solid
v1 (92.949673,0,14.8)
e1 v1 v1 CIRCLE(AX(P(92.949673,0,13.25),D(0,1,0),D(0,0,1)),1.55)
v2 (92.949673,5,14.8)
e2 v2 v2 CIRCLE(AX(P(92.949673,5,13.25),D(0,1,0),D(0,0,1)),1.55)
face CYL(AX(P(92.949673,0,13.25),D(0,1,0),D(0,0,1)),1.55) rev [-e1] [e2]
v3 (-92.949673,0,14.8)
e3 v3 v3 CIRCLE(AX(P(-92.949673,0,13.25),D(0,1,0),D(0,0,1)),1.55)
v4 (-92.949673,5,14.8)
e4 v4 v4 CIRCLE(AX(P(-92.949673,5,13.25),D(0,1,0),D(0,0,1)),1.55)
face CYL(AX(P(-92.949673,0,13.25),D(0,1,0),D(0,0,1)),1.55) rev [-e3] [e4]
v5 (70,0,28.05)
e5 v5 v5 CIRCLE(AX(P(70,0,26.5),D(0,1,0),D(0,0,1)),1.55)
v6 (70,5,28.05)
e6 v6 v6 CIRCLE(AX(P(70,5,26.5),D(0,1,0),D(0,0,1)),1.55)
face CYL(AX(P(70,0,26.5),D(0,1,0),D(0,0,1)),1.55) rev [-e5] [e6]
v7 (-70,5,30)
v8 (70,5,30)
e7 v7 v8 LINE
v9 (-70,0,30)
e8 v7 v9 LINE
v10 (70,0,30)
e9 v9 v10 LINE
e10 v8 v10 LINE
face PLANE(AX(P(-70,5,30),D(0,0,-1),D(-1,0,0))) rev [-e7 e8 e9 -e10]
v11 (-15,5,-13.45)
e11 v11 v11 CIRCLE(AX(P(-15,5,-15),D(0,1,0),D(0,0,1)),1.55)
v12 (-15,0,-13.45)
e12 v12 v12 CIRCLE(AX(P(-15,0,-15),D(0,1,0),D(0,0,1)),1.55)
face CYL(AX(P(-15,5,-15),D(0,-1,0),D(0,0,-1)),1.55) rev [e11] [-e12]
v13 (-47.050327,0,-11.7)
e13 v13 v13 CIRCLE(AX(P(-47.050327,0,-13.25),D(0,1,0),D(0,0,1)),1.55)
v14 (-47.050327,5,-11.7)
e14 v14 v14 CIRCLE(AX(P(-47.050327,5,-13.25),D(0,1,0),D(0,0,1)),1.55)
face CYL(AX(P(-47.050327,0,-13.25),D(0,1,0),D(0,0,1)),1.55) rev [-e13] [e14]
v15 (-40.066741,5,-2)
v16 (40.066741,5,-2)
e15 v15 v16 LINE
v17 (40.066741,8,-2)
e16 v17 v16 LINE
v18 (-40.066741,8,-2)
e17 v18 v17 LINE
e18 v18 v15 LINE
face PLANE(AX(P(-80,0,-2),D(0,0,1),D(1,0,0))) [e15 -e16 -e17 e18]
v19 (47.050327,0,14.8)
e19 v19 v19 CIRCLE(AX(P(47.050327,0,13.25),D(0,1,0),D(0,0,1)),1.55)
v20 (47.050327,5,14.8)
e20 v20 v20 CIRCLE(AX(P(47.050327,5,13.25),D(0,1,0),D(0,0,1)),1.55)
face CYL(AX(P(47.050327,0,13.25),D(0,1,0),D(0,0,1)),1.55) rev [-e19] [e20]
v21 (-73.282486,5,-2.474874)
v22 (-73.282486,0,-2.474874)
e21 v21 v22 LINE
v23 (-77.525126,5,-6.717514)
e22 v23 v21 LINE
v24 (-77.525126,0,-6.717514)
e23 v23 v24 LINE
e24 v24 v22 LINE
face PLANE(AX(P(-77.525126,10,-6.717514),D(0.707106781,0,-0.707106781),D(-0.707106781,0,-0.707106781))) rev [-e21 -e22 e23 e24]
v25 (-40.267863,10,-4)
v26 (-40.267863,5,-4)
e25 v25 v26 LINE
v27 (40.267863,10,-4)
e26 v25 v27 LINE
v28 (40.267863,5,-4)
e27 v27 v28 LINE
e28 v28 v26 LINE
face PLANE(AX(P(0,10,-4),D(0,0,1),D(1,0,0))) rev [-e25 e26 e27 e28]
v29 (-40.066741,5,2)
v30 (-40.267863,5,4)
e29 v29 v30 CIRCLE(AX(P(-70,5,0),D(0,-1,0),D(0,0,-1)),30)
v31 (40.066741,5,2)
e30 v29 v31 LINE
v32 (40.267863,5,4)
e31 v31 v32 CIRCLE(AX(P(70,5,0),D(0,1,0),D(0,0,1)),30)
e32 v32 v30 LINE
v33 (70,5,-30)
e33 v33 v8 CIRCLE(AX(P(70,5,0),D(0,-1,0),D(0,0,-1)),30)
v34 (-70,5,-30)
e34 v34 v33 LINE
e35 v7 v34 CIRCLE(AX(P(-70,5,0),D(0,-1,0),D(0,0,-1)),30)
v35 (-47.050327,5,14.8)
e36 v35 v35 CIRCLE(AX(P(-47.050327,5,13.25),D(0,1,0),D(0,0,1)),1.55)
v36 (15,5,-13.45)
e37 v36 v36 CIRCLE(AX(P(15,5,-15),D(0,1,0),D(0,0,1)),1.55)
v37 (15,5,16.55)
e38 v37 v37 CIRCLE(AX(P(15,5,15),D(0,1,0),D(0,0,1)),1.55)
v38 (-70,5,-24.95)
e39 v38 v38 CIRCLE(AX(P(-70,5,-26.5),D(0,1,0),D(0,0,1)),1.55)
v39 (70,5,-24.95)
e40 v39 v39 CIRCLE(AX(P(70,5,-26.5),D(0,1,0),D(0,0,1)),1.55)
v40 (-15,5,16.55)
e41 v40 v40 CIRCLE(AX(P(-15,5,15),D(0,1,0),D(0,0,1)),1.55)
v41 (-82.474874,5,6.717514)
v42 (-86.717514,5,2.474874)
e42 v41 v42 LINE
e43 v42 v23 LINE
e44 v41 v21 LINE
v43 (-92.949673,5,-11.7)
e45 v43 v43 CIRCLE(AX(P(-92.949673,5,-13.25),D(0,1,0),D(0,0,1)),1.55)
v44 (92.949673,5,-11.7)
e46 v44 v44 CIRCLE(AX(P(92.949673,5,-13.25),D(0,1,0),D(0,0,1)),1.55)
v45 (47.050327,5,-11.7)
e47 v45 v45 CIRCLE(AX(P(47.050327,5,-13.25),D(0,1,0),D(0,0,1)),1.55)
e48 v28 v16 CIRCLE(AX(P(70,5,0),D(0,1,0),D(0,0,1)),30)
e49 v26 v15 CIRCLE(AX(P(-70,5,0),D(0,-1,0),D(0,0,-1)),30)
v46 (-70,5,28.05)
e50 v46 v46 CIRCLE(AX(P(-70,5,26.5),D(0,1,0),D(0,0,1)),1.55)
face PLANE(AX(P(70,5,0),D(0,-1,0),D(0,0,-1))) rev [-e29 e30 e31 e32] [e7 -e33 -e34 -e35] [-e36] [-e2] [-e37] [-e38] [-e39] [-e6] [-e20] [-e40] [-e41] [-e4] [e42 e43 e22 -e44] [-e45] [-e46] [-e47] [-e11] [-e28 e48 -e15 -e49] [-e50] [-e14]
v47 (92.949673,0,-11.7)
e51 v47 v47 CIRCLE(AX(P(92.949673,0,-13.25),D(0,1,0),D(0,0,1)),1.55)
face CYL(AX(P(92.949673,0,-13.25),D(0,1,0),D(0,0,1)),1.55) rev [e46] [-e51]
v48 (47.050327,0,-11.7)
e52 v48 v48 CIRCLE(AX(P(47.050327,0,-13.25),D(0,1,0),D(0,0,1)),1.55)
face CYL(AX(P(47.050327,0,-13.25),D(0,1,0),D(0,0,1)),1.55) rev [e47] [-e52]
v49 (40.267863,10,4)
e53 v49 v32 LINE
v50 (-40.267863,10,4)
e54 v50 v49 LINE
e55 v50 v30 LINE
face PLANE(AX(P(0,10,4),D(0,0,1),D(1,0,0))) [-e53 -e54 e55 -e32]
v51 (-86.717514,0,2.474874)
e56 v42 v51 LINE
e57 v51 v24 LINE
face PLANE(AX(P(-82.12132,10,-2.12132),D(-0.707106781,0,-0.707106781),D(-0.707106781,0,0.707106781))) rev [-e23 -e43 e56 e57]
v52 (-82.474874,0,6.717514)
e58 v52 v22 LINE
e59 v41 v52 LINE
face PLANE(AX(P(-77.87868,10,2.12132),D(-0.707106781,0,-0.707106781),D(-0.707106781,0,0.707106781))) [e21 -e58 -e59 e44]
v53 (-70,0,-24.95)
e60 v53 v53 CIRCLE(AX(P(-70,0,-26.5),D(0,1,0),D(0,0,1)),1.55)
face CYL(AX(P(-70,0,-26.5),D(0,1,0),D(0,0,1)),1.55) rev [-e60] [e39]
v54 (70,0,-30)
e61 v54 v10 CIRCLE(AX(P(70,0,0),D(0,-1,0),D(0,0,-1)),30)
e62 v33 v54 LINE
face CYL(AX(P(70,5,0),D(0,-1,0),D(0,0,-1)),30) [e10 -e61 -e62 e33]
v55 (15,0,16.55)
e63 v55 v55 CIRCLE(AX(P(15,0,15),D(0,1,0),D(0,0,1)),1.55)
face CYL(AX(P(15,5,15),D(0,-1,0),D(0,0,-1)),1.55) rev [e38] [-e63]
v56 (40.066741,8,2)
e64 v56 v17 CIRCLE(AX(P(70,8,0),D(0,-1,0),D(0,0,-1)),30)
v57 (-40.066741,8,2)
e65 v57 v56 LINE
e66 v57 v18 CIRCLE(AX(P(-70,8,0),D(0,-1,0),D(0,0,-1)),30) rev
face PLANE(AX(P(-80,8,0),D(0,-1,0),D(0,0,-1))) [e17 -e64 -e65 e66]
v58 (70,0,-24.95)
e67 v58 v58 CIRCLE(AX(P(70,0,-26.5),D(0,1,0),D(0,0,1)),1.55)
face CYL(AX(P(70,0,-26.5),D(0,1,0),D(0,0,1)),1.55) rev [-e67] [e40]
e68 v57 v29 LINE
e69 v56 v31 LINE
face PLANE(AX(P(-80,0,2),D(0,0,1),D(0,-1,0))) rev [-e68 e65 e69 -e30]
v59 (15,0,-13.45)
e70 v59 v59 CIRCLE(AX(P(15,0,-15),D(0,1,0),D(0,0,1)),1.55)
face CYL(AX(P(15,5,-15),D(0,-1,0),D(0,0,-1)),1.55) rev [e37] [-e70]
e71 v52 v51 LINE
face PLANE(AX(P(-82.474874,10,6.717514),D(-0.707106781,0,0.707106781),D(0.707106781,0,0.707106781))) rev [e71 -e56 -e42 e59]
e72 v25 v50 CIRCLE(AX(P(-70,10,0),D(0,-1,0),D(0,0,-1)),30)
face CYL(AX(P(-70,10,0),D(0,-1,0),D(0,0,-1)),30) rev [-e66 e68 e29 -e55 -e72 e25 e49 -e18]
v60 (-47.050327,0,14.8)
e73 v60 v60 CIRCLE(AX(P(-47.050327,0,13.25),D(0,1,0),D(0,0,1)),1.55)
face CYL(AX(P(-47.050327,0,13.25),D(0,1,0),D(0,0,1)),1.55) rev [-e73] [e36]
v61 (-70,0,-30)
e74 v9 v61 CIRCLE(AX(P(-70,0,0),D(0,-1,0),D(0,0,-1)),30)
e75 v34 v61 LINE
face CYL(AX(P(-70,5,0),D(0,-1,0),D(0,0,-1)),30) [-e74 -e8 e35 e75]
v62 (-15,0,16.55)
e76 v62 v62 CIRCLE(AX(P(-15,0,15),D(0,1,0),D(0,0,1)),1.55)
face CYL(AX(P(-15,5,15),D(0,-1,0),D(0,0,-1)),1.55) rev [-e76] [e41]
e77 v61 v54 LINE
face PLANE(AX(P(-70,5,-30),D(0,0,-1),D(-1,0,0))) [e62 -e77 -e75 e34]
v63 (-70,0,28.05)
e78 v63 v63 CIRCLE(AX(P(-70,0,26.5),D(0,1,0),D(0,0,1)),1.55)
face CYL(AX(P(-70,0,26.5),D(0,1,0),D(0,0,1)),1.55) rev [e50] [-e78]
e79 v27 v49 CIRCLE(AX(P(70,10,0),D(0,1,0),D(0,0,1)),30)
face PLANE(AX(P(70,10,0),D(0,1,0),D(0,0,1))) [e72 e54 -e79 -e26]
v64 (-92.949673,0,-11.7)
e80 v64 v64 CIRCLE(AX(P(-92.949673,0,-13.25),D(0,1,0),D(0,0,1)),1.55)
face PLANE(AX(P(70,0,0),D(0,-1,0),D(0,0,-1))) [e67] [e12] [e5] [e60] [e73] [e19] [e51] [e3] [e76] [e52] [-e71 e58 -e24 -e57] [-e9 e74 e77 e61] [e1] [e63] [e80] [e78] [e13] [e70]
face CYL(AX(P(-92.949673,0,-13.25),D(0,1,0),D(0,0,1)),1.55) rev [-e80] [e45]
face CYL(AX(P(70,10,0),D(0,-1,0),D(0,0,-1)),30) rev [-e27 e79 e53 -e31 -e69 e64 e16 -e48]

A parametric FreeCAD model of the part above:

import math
import FreeCAD as App
import Part
import Sketcher

V = App.Vector
Q = App.Units.Quantity


def add_polygon(sketch, points):
    """Adds a closed chain of lines whose ends are joined by coincident constraints."""
    first, n = sketch.GeometryCount, len(points)
    for a, b in zip(points, points[1:] + points[:1]):
        sketch.addGeometry(Part.LineSegment(App.Vector(*a, 0), App.Vector(*b, 0)), False)
    for i in range(n):
        sketch.addConstraint(Sketcher.Constraint("Coincident", first + i, 2, first + (i + 1) % n, 1))

doc = App.newDocument("Part")
params = doc.addObject("Spreadsheet::Sheet", "Params")
for row, (alias, value) in enumerate([
    ("sketch1_radius", "30 mm"),
    ("sketch1_diameter", "3.1 mm"),
    ("sketch1_width", "140 mm"),
    ("sketch1_width2", "20 mm"),
    ("pad1_length", "5 mm"),
    ("sketch2_diameter", "3.1 mm"),
    ("pocket1_length", "5 mm"),
    ("sketch3_width", "20 mm"),
    ("pad2_length", "5 mm"),
    ("sketch4_radius", "30 mm"),
    ("pad3_length", "5 mm"),
    ("sketch5_height", "8 mm"),
    ("pad4_length", "5 mm"),
    ("sketch6_width", "3 mm"),
    ("sketch6_height", "4 mm"),
    ("pocket2_length", "150 mm"),
    ("sketch7_width", "5 mm"),
    ("sketch7_height", "8 mm"),
    ("pocket3_length", "10 mm"),
    ("sketch8_length", "6 mm"),
    ("sketch8_length2", "6.5 mm"),
    ("pocket4_length", "10 mm"),
], start=1):
    params.set(f"A{row}", alias)
    params.set(f"B{row}", "=" + value)
    params.setAlias(f"B{row}", alias)

body = doc.addObject("PartDesign::Body", "Body")

sketch1 = body.newObject("Sketcher::SketchObject", "Sketch")
sketch1.AttachmentSupport = (doc.getObject("XZ_Plane"), [""])
sketch1.MapMode = "FlatFace"
sketch1.addGeometry(Part.LineSegment(V(70, -30, 0), V(-70, -30, 0)), False)
sketch1.addGeometry(Part.ArcOfCircle(Part.Circle(V(-70, 0, 0), V(0, 0, 1), 30), math.radians(90), math.radians(270)), False)
sketch1.addGeometry(Part.LineSegment(V(-70, 30, 0), V(70, 30, 0)), False)
sketch1.addGeometry(Part.ArcOfCircle(Part.Circle(V(70, 0, 0), V(0, 0, 1), 30), math.radians(-90), math.radians(90)), False)
sketch1.addGeometry(Part.Circle(V(15, 15, 0), V(0, 0, 1), 1.55), False)
sketch1.addGeometry(Part.Circle(V(-15, 15, 0), V(0, 0, 1), 1.55), False)
add_polygon(sketch1, [(90, 10), (70, 10), (70, -10), (90, -10)])
sketch1.addGeometry(Part.Circle(V(15, -15, 0), V(0, 0, 1), 1.55), False)
add_polygon(sketch1, [(-90, -10), (-70, -10), (-70, 10), (-90, 10)])
sketch1.addGeometry(Part.Circle(V(-15, -15, 0), V(0, 0, 1), 1.55), False)
sketch1.addConstraint([
    Sketcher.Constraint("Tangent", 0, 2, 1, 2),
    Sketcher.Constraint("Tangent", 1, 1, 2, 1),
    Sketcher.Constraint("Tangent", 2, 2, 3, 2),
    Sketcher.Constraint("Tangent", 3, 1, 0, 1),
    Sketcher.Constraint("Horizontal", 0),
    Sketcher.Constraint("Horizontal", 2),
    Sketcher.Constraint("Horizontal", 6),
    Sketcher.Constraint("Vertical", 7),
    Sketcher.Constraint("Horizontal", 8),
    Sketcher.Constraint("Vertical", 9),
    Sketcher.Constraint("Horizontal", 11),
    Sketcher.Constraint("Vertical", 12),
    Sketcher.Constraint("Horizontal", 13),
    Sketcher.Constraint("Vertical", 14),
    Sketcher.Constraint("Equal", 4, 5),
    Sketcher.Constraint("Equal", 5, 10),
    Sketcher.Constraint("Equal", 10, 15),
    Sketcher.Constraint("Symmetric", 1, 3, 3, 3, -1, 1),
    Sketcher.Constraint("Symmetric", 5, 3, 10, 3, -1, 1),
    Sketcher.Constraint("Symmetric", 4, 3, 15, 3, -1, 1),
    Sketcher.Constraint("Symmetric", 6, 2, 11, 2, -1, 1),
    Sketcher.Constraint("Symmetric", 8, 2, 13, 2, -1, 1),
    Sketcher.Constraint("Symmetric", 4, 3, 5, 3, -2),
    Sketcher.Constraint("Horizontal", 8, 2, 11, 2),
    Sketcher.Constraint("Vertical", 3, 1, 6, 2),
    Sketcher.Constraint("Equal", 13, 7),
    Sketcher.Constraint("Radius", 1, 30.0),
    Sketcher.Constraint("Diameter", 4, 3.1),
    Sketcher.Constraint("DistanceX", 0, 2, 0, 1, 140.0),
    Sketcher.Constraint("DistanceX", 6, 2, 6, 1, 20.0),
    Sketcher.Constraint("DistanceX", -1, 1, 4, 3, 15.0),
    Sketcher.Constraint("DistanceY", -1, 1, 4, 3, 15.0),
])
sketch1.setExpression("Constraints[34]", "Params.sketch1_radius")
sketch1.setExpression("Constraints[35]", "Params.sketch1_diameter")
sketch1.setExpression("Constraints[36]", "Params.sketch1_width")
sketch1.setExpression("Constraints[37]", "Params.sketch1_width2")
pad1 = body.newObject("PartDesign::Pad", "Pad")
pad1.Profile = sketch1
pad1.setExpression("Length", "Params.pad1_length")
pad1.Reversed = True

sketch2 = body.newObject("Sketcher::SketchObject", "Sketch001")
sketch2.AttachmentSupport = (doc.getObject("XZ_Plane"), [""])
sketch2.MapMode = "FlatFace"
sketch2.AttachmentOffset = App.Placement(V(0, 0, -5), App.Rotation())
sketch2.addGeometry([
    Part.Circle(V(-70, -26.5, 0), V(0, 0, 1), 1.55),
    Part.Circle(V(-92.949673, -13.25, 0), V(0, 0, 1), 1.55),
    Part.Circle(V(-92.949673, 13.25, 0), V(0, 0, 1), 1.55),
    Part.Circle(V(-70, 26.5, 0), V(0, 0, 1), 1.55),
    Part.Circle(V(-47.050327, 13.25, 0), V(0, 0, 1), 1.55),
    Part.Circle(V(-47.050327, -13.25, 0), V(0, 0, 1), 1.55),
    Part.Circle(V(92.949673, -13.25, 0), V(0, 0, 1), 1.55),
    Part.Circle(V(92.949673, 13.25, 0), V(0, 0, 1), 1.55),
    Part.Circle(V(70, 26.5, 0), V(0, 0, 1), 1.55),
    Part.Circle(V(47.050327, 13.25, 0), V(0, 0, 1), 1.55),
    Part.Circle(V(47.050327, -13.25, 0), V(0, 0, 1), 1.55),
    Part.Circle(V(70, -26.5, 0), V(0, 0, 1), 1.55),
], False)
sketch2.addConstraint([
    Sketcher.Constraint("Equal", 0, 1),
    Sketcher.Constraint("Equal", 1, 2),
    Sketcher.Constraint("Equal", 2, 3),
    Sketcher.Constraint("Equal", 3, 4),
    Sketcher.Constraint("Equal", 4, 5),
    Sketcher.Constraint("Equal", 5, 6),
    Sketcher.Constraint("Equal", 6, 7),
    Sketcher.Constraint("Equal", 7, 8),
    Sketcher.Constraint("Equal", 8, 9),
    Sketcher.Constraint("Equal", 9, 10),
    Sketcher.Constraint("Equal", 10, 11),
    Sketcher.Constraint("Symmetric", 2, 3, 6, 3, -1, 1),
    Sketcher.Constraint("Symmetric", 1, 3, 7, 3, -1, 1),
    Sketcher.Constraint("Symmetric", 0, 3, 8, 3, -1, 1),
    Sketcher.Constraint("Symmetric", 5, 3, 9, 3, -1, 1),
    Sketcher.Constraint("Symmetric", 4, 3, 10, 3, -1, 1),
    Sketcher.Constraint("Symmetric", 3, 3, 11, 3, -1, 1),
    Sketcher.Constraint("Symmetric", 1, 3, 6, 3, -2),
    Sketcher.Constraint("Symmetric", 3, 3, 8, 3, -2),
    Sketcher.Constraint("Symmetric", 4, 3, 9, 3, -2),
    Sketcher.Constraint("Horizontal", 2, 3, 4, 3),
    Sketcher.Constraint("Diameter", 0, 3.1),
    Sketcher.Constraint("DistanceX", 0, 3, -1, 1, 70.0),
    Sketcher.Constraint("DistanceY", 0, 3, 3, 3, 53.0),
    Sketcher.Constraint("DistanceX", 5, 3, 6, 3, 140.0),
    Sketcher.Constraint("DistanceY", 1, 3, 2, 3, 26.5),
    Sketcher.Constraint("DistanceX", 1, 3, -1, 1, 92.949673),
])
sketch2.setExpression("Constraints[21]", "Params.sketch2_diameter")
pocket1 = body.newObject("PartDesign::Pocket", "Pocket")
pocket1.Profile = sketch2
pocket1.setExpression("Length", "Params.pocket1_length")
pocket1.Reversed = True

sketch3 = body.newObject("Sketcher::SketchObject", "Sketch002")
sketch3.AttachmentSupport = (doc.getObject("XZ_Plane"), [""])
sketch3.MapMode = "FlatFace"
sketch3.AttachmentOffset = App.Placement(V(0, 0, -5), App.Rotation())
add_polygon(sketch3, [(-90, -10), (-90, 10), (-70, 10), (-70, -10)])
add_polygon(sketch3, [(70, -10), (70, 10), (90, 10), (90, -10)])
sketch3.addConstraint([
    Sketcher.Constraint("Vertical", 0),
    Sketcher.Constraint("Horizontal", 1),
    Sketcher.Constraint("Vertical", 2),
    Sketcher.Constraint("Horizontal", 3),
    Sketcher.Constraint("Vertical", 4),
    Sketcher.Constraint("Horizontal", 5),
    Sketcher.Constraint("Vertical", 6),
    Sketcher.Constraint("Horizontal", 7),
    Sketcher.Constraint("Symmetric", 2, 2, 4, 2, -1, 1),
    Sketcher.Constraint("Symmetric", 0, 2, 6, 2, -1, 1),
    Sketcher.Constraint("Horizontal", 1, 2, 4, 2),
    Sketcher.Constraint("Equal", 7, 0),
    Sketcher.Constraint("DistanceX", 1, 1, 1, 2, 20.0),
    Sketcher.Constraint("DistanceX", 0, 2, -1, 1, 90.0),
])
sketch3.setExpression("Constraints[20]", "Params.sketch3_width")
pad2 = body.newObject("PartDesign::Pad", "Pad001")
pad2.Profile = sketch3
pad2.setExpression("Length", "Params.pad2_length")

sketch4 = body.newObject("Sketcher::SketchObject", "Sketch003")
sketch4.AttachmentSupport = (doc.getObject("XZ_Plane"), [""])
sketch4.MapMode = "FlatFace"
sketch4.AttachmentOffset = App.Placement(V(0, 0, -5), App.Rotation())
sketch4.addGeometry([
    Part.ArcOfCircle(Part.Circle(V(70, 0, 0), V(0, 0, 1), 30), math.radians(172.337744), math.radians(187.662256)),
    Part.LineSegment(V(40.267863, -4, 0), V(-40.267863, -4, 0)),
    Part.ArcOfCircle(Part.Circle(V(-70, 0, 0), V(0, 0, 1), 30), math.radians(-7.662256), math.radians(7.662256)),
    Part.LineSegment(V(-40.267863, 4, 0), V(40.267863, 4, 0)),
], False)
sketch4.addConstraint([
    Sketcher.Constraint("Coincident", 0, 2, 1, 1),
    Sketcher.Constraint("Coincident", 1, 2, 2, 1),
    Sketcher.Constraint("Coincident", 2, 2, 3, 1),
    Sketcher.Constraint("Coincident", 3, 2, 0, 1),
    Sketcher.Constraint("Horizontal", 1),
    Sketcher.Constraint("Horizontal", 3),
    Sketcher.Constraint("Equal", 0, 2),
    Sketcher.Constraint("Symmetric", 0, 3, 2, 3, -1, 1),
    Sketcher.Constraint("Symmetric", 1, 2, 2, 2, -1),
    Sketcher.Constraint("Radius", 0, 30.0),
    Sketcher.Constraint("DistanceX", -1, 1, 0, 3, 70.0),
    Sketcher.Constraint("DistanceY", 0, 2, -1, 1, 4.0),
])
sketch4.setExpression("Constraints[9]", "Params.sketch4_radius")
pad3 = body.newObject("PartDesign::Pad", "Pad002")
pad3.Profile = sketch4
pad3.setExpression("Length", "Params.pad3_length")
pad3.Reversed = True

sketch5 = body.newObject("Sketcher::SketchObject", "Sketch004")
sketch5.AttachmentSupport = (doc.getObject("XZ_Plane"), [""])
sketch5.MapMode = "FlatFace"
sketch5.AttachmentOffset = App.Placement(V(0, 0, -5), App.Rotation())
add_polygon(sketch5, [(70, -4), (63.550267, -4), (63.550267, 4), (70, 4)])
sketch5.addConstraint([
    Sketcher.Constraint("Horizontal", 0),
    Sketcher.Constraint("Vertical", 1),
    Sketcher.Constraint("Horizontal", 2),
    Sketcher.Constraint("Vertical", 3),
    Sketcher.Constraint("DistanceY", 1, 1, 1, 2, 8.0),
    Sketcher.Constraint("DistanceY", 0, 2, -1, 1, 4.0),
    Sketcher.Constraint("DistanceX", -1, 1, 2, 2, 70.0),
    Sketcher.Constraint("DistanceX", 0, 2, 0, 1, 6.449733),
])
sketch5.setExpression("Constraints[8]", "Params.sketch5_height")
pad4 = body.newObject("PartDesign::Pad", "Pad003")
pad4.Profile = sketch5
pad4.setExpression("Length", "Params.pad4_length")
pad4.Reversed = True

sketch6 = body.newObject("Sketcher::SketchObject", "Sketch005")
sketch6.AttachmentSupport = (doc.getObject("YZ_Plane"), [""])
sketch6.MapMode = "FlatFace"
sketch6.AttachmentOffset = App.Placement(V(0, 0, 70), App.Rotation())
add_polygon(sketch6, [(8, -2), (8, 2), (5, 2), (5, -2)])
sketch6.addConstraint([
    Sketcher.Constraint("Vertical", 0),
    Sketcher.Constraint("Horizontal", 1),
    Sketcher.Constraint("Vertical", 2),
    Sketcher.Constraint("Horizontal", 3),
    Sketcher.Constraint("DistanceX", 1, 2, 1, 1, 3.0),
    Sketcher.Constraint("DistanceY", 0, 1, 0, 2, 4.0),
    Sketcher.Constraint("DistanceX", -1, 1, 0, 2, 8.0),
    Sketcher.Constraint("DistanceY", -1, 1, 0, 2, 2.0),
])
sketch6.setExpression("Constraints[8]", "Params.sketch6_width")
sketch6.setExpression("Constraints[9]", "Params.sketch6_height")
pocket2 = body.newObject("PartDesign::Pocket", "Pocket001")
pocket2.Profile = sketch6
pocket2.setExpression("Length", "Params.pocket2_length")

sketch7 = body.newObject("Sketcher::SketchObject", "Sketch006")
sketch7.AttachmentSupport = (doc.getObject("YZ_Plane"), [""])
sketch7.MapMode = "FlatFace"
sketch7.AttachmentOffset = App.Placement(V(0, 0, 70), App.Rotation())
add_polygon(sketch7, [(10, 4), (5, 4), (5, -4), (10, -4)])
sketch7.addConstraint([
    Sketcher.Constraint("Horizontal", 0),
    Sketcher.Constraint("Vertical", 1),
    Sketcher.Constraint("Horizontal", 2),
    Sketcher.Constraint("Vertical", 3),
    Sketcher.Constraint("DistanceX", 0, 2, 0, 1, 5.0),
    Sketcher.Constraint("DistanceY", 1, 2, 1, 1, 8.0),
    Sketcher.Constraint("DistanceX", -1, 1, 0, 2, 5.0),
    Sketcher.Constraint("DistanceY", -1, 1, 0, 2, 4.0),
])
sketch7.setExpression("Constraints[8]", "Params.sketch7_width")
sketch7.setExpression("Constraints[9]", "Params.sketch7_height")
pocket3 = body.newObject("PartDesign::Pocket", "Pocket002")
pocket3.Profile = sketch7
pocket3.setExpression("Length", "Params.pocket3_length")

sketch8 = body.newObject("Sketcher::SketchObject", "Sketch007")
sketch8.AttachmentSupport = (doc.getObject("XZ_Plane"), [""])
sketch8.MapMode = "FlatFace"
add_polygon(sketch8, [(-86.717514, 2.474874), (-82.12132, -2.12132), (-77.525126, -6.717514), (-73.282486, -2.474874), (-77.87868, 2.12132), (-82.474874, 6.717514)])
sketch8.addConstraint([
    Sketcher.Constraint("Parallel", 0, 1),
    Sketcher.Constraint("Perpendicular", 1, 2),
    Sketcher.Constraint("Perpendicular", 2, 3),
    Sketcher.Constraint("Parallel", 3, 4),
    Sketcher.Constraint("Perpendicular", 4, 5),
    Sketcher.Constraint("Equal", 0, 1),
    Sketcher.Constraint("Equal", 1, 3),
    Sketcher.Constraint("Angle", 0, Q("-45 deg")),
    Sketcher.Constraint("Distance", 2, 6.0),
    Sketcher.Constraint("Distance", 0, 6.5),
    Sketcher.Constraint("DistanceX", 0, 2, -1, 1, 82.12132),
    Sketcher.Constraint("DistanceY", 0, 2, -1, 1, 2.12132),
])
sketch8.setExpression("Constraints[14]", "Params.sketch8_length")
sketch8.setExpression("Constraints[15]", "Params.sketch8_length2")
pocket4 = body.newObject("PartDesign::Pocket", "Pocket003")
pocket4.Profile = sketch8
pocket4.setExpression("Length", "Params.pocket4_length")

doc.recompute()
